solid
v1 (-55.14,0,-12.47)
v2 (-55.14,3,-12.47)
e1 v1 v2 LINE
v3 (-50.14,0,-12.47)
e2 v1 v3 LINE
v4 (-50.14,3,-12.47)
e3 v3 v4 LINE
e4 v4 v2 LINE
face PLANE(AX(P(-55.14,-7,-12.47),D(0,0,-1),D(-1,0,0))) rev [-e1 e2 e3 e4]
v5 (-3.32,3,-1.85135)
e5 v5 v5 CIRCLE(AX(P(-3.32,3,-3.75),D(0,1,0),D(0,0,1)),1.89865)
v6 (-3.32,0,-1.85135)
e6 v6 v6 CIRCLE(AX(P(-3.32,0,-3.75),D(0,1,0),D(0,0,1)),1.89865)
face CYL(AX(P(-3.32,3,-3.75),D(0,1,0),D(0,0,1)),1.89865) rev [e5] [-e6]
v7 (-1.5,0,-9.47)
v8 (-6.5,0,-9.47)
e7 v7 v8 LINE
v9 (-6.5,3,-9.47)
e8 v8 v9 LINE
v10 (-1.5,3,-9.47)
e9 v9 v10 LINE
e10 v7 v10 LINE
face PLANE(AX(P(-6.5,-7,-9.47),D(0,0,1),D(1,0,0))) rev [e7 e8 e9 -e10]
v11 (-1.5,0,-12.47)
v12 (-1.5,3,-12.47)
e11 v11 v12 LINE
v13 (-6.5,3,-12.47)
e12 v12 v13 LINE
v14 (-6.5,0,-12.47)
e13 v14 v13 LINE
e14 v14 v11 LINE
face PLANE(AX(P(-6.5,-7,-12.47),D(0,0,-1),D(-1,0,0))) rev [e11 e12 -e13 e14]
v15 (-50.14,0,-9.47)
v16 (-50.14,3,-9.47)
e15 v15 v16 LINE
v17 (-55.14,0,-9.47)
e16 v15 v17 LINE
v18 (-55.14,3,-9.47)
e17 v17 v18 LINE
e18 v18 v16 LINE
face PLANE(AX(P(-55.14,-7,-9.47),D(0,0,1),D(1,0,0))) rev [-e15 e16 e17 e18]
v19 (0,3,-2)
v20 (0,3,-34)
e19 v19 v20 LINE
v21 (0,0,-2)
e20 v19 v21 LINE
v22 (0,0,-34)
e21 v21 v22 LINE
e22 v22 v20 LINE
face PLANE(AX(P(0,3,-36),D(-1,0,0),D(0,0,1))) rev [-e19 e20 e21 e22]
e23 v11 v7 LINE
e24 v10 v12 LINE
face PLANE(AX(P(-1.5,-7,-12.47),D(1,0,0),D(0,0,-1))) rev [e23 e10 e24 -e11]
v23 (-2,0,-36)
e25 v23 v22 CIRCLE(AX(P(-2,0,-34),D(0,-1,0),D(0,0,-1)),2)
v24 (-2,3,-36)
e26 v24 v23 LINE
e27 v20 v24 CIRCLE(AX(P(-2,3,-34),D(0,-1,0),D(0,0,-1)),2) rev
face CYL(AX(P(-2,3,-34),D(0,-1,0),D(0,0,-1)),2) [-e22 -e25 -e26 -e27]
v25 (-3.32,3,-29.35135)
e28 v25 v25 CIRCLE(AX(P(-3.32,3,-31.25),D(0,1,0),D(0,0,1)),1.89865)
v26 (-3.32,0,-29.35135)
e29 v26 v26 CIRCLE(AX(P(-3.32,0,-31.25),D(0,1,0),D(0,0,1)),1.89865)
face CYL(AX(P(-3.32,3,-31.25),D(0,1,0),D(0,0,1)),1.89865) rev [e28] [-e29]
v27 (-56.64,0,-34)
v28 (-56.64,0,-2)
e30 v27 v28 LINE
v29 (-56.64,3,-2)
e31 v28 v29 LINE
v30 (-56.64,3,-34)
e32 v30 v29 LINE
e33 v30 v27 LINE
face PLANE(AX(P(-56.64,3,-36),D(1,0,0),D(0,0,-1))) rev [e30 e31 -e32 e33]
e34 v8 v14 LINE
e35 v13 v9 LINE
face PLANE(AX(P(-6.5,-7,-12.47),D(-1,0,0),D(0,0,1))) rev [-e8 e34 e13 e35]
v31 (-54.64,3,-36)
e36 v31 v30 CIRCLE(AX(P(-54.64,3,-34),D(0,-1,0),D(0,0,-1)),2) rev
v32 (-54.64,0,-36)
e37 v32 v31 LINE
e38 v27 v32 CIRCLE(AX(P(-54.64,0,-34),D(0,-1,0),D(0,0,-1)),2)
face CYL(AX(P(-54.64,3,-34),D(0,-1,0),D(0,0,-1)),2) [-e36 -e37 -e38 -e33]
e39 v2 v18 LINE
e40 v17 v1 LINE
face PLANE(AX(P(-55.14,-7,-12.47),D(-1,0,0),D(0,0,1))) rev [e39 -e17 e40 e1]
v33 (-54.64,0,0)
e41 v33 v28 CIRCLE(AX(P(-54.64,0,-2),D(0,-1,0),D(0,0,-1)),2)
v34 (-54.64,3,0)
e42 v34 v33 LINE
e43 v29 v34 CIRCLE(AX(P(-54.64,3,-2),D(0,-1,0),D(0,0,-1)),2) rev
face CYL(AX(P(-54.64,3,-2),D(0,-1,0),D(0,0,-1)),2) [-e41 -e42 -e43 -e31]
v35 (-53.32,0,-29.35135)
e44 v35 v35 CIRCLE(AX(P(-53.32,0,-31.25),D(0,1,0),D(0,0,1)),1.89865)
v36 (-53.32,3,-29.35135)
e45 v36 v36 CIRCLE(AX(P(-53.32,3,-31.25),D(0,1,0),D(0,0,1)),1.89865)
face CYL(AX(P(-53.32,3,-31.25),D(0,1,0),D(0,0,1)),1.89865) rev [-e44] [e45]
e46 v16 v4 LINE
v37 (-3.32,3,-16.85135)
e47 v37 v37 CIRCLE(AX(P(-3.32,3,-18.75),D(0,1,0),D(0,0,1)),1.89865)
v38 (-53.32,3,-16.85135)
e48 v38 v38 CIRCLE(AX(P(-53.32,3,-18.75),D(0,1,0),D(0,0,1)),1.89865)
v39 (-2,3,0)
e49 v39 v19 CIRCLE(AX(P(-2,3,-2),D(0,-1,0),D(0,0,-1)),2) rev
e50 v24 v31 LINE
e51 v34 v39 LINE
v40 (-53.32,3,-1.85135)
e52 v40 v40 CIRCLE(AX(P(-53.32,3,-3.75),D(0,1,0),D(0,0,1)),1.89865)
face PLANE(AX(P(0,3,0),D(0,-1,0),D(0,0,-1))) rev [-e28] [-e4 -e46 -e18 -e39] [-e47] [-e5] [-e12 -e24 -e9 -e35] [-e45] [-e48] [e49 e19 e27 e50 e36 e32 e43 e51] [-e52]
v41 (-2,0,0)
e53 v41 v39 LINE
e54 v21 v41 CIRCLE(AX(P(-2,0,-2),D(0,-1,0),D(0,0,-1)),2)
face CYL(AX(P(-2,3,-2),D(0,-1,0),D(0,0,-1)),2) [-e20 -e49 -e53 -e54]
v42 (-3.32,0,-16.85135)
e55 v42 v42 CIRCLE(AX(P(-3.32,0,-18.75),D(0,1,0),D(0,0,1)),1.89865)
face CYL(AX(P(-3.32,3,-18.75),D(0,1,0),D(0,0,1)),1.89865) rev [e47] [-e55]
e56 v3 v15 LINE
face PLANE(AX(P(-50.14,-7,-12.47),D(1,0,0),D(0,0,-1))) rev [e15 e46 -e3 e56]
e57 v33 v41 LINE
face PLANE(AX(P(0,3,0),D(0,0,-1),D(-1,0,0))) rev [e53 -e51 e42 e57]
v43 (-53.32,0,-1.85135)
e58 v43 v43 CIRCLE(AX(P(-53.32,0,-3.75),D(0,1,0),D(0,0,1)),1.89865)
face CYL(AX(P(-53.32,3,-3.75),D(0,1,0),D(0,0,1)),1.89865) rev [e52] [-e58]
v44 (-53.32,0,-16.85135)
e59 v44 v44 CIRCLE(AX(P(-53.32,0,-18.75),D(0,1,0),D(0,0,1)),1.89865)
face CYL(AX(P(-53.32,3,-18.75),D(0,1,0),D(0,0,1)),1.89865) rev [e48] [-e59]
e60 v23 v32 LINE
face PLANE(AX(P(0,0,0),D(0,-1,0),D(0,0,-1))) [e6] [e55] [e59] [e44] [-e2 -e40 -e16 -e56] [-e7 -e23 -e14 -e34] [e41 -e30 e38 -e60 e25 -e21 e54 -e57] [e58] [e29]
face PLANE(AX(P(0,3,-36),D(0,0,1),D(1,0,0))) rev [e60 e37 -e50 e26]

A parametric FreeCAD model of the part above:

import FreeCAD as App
import Part
import Sketcher
from FreeCAD import Vector


def edges_at(feature, points):
    """Names of the edges that pass closest to the given points."""
    edges = feature.Shape.Edges
    near = lambda p: min(range(len(edges)), key=lambda i: edges[i].distToShape(Part.Vertex(*p))[0])
    return sorted({f"Edge{near(p) + 1}" for p in points})


def add_polygon(sketch, points):
    """Adds a closed chain of lines whose ends are joined by coincident constraints."""
    first, n = sketch.GeometryCount, len(points)
    for a, b in zip(points, points[1:] + points[:1]):
        sketch.addGeometry(Part.LineSegment(App.Vector(*a, 0), App.Vector(*b, 0)), False)
    for i in range(n):
        sketch.addConstraint(Sketcher.Constraint("Coincident", first + i, 2, first + (i + 1) % n, 1))

doc = App.newDocument("Part")
body = doc.addObject("PartDesign::Body", "Body")

sketch1 = body.newObject("Sketcher::SketchObject", "Sketch")
sketch1.AttachmentSupport = (doc.getObject("XZ_Plane"), [""])
sketch1.MapMode = "FlatFace"
add_polygon(sketch1, [(-57, -36), (-57, 0), (0, 0), (0, -36)])
sketch1.addConstraint([
    Sketcher.Constraint("Vertical", 0),
    Sketcher.Constraint("Horizontal", 1),
    Sketcher.Constraint("Vertical", 2),
    Sketcher.Constraint("Horizontal", 3),
    Sketcher.Constraint("Coincident", 1, 2, -1, 1),
    Sketcher.Constraint("DistanceY", 0, 1, 0, 2, 36.0),
    Sketcher.Constraint("DistanceX", 1, 1, 1, 2, 56.64),
])
pad1 = body.newObject("PartDesign::Pad", "Pad")
pad1.Profile = sketch1
pad1.Length = 3
pad1.Reversed = True

sketch2 = body.newObject("Sketcher::SketchObject", "Sketch001")
sketch2.AttachmentSupport = (doc.getObject("XZ_Plane"), [""])
sketch2.MapMode = "FlatFace"
sketch2.AttachmentOffset = App.Placement(Vector(0, 0, -3), App.Rotation())
sketch2.addGeometry([
    Part.Circle(Vector(-53.3, -31.2, 0), Vector(0, 0, 1), 1.9),
    Part.Circle(Vector(-53.3, -18.8, 0), Vector(0, 0, 1), 1.9),
    Part.Circle(Vector(-53.3, -3.8, 0), Vector(0, 0, 1), 1.9),
    Part.Circle(Vector(-3.3, -31.2, 0), Vector(0, 0, 1), 1.9),
    Part.Circle(Vector(-3.3, -18.8, 0), Vector(0, 0, 1), 1.9),
    Part.Circle(Vector(-3.3, -3.8, 0), Vector(0, 0, 1), 1.9),
], False)
sketch2.addConstraint([
    Sketcher.Constraint("Equal", 0, 1),
    Sketcher.Constraint("Equal", 1, 2),
    Sketcher.Constraint("Equal", 2, 3),
    Sketcher.Constraint("Equal", 3, 4),
    Sketcher.Constraint("Equal", 4, 5),
    Sketcher.Constraint("Horizontal", 0, 3, 3, 3),
    Sketcher.Constraint("Horizontal", 1, 3, 4, 3),
    Sketcher.Constraint("Horizontal", 2, 3, 5, 3),
    Sketcher.Constraint("Vertical", 0, 3, 1, 3),
    Sketcher.Constraint("Vertical", 1, 3, 2, 3),
    Sketcher.Constraint("Vertical", 3, 3, 4, 3),
    Sketcher.Constraint("Vertical", 4, 3, 5, 3),
    Sketcher.Constraint("DistanceY", 1, 3, 2, 3, 15.0),
    Sketcher.Constraint("DistanceX", 0, 3, 3, 3, 50.0),
    Sketcher.Constraint("Diameter", 0, 3.7973),
    Sketcher.Constraint("DistanceY", 0, 3, 1, 3, 12.5),
    Sketcher.Constraint("DistanceX", 0, 3, -1, 1, 53.32),
    Sketcher.Constraint("DistanceY", 0, 3, -1, 1, 31.25),
])
doc.recompute()
hole = body.newObject("PartDesign::Hole", "Hole")
hole.Profile = sketch2
hole.ThreadType = "None"
hole.Diameter = 3.7973
hole.DepthType = "ThroughAll"
hole.Reversed = True

sketch3 = body.newObject("Sketcher::SketchObject", "Sketch002")
sketch3.AttachmentSupport = (doc.getObject("XZ_Plane"), [""])
sketch3.MapMode = "FlatFace"
sketch3.AttachmentOffset = App.Placement(Vector(0, 0, -3), App.Rotation())
add_polygon(sketch3, [(-55.1, -12.5), (-55.1, -9.5), (-50.1, -9.5), (-50.1, -12.5)])
add_polygon(sketch3, [(-6.5, -12.5), (-6.5, -9.5), (-1.5, -9.5), (-1.5, -12.5)])
sketch3.addConstraint([
    Sketcher.Constraint("Vertical", 0),
    Sketcher.Constraint("Horizontal", 1),
    Sketcher.Constraint("Vertical", 2),
    Sketcher.Constraint("Horizontal", 3),
    Sketcher.Constraint("Vertical", 4),
    Sketcher.Constraint("Horizontal", 5),
    Sketcher.Constraint("Vertical", 6),
    Sketcher.Constraint("Horizontal", 7),
    Sketcher.Constraint("Horizontal", 1, 2, 4, 2),
    Sketcher.Constraint("Horizontal", 3, 2, 6, 2),
    Sketcher.Constraint("Equal", 3, 5),
    Sketcher.Constraint("DistanceX", 1, 1, 1, 2, 5.0),
    Sketcher.Constraint("DistanceY", 0, 1, 0, 2, 3.0),
    Sketcher.Constraint("DistanceX", 4, 2, -1, 1, 6.5),
    Sketcher.Constraint("DistanceX", 0, 2, -1, 1, 55.14),
    Sketcher.Constraint("DistanceY", 0, 2, -1, 1, 9.47),
])
pocket1 = body.newObject("PartDesign::Pocket", "Pocket")
pocket1.Profile = sketch3
pocket1.Length = 10
pocket1.Reversed = True
doc.recompute()

fillet = body.newObject("PartDesign::Fillet", "Fillet")
fillet.Base = (pocket1, edges_at(pocket1, [
    (0, 1.5, 0),
    (-56.64, 1.5, 0),
    (-56.64, 1.5, -36),
    (0, 1.5, -36),
]))
fillet.Radius = 2

doc.recompute()
